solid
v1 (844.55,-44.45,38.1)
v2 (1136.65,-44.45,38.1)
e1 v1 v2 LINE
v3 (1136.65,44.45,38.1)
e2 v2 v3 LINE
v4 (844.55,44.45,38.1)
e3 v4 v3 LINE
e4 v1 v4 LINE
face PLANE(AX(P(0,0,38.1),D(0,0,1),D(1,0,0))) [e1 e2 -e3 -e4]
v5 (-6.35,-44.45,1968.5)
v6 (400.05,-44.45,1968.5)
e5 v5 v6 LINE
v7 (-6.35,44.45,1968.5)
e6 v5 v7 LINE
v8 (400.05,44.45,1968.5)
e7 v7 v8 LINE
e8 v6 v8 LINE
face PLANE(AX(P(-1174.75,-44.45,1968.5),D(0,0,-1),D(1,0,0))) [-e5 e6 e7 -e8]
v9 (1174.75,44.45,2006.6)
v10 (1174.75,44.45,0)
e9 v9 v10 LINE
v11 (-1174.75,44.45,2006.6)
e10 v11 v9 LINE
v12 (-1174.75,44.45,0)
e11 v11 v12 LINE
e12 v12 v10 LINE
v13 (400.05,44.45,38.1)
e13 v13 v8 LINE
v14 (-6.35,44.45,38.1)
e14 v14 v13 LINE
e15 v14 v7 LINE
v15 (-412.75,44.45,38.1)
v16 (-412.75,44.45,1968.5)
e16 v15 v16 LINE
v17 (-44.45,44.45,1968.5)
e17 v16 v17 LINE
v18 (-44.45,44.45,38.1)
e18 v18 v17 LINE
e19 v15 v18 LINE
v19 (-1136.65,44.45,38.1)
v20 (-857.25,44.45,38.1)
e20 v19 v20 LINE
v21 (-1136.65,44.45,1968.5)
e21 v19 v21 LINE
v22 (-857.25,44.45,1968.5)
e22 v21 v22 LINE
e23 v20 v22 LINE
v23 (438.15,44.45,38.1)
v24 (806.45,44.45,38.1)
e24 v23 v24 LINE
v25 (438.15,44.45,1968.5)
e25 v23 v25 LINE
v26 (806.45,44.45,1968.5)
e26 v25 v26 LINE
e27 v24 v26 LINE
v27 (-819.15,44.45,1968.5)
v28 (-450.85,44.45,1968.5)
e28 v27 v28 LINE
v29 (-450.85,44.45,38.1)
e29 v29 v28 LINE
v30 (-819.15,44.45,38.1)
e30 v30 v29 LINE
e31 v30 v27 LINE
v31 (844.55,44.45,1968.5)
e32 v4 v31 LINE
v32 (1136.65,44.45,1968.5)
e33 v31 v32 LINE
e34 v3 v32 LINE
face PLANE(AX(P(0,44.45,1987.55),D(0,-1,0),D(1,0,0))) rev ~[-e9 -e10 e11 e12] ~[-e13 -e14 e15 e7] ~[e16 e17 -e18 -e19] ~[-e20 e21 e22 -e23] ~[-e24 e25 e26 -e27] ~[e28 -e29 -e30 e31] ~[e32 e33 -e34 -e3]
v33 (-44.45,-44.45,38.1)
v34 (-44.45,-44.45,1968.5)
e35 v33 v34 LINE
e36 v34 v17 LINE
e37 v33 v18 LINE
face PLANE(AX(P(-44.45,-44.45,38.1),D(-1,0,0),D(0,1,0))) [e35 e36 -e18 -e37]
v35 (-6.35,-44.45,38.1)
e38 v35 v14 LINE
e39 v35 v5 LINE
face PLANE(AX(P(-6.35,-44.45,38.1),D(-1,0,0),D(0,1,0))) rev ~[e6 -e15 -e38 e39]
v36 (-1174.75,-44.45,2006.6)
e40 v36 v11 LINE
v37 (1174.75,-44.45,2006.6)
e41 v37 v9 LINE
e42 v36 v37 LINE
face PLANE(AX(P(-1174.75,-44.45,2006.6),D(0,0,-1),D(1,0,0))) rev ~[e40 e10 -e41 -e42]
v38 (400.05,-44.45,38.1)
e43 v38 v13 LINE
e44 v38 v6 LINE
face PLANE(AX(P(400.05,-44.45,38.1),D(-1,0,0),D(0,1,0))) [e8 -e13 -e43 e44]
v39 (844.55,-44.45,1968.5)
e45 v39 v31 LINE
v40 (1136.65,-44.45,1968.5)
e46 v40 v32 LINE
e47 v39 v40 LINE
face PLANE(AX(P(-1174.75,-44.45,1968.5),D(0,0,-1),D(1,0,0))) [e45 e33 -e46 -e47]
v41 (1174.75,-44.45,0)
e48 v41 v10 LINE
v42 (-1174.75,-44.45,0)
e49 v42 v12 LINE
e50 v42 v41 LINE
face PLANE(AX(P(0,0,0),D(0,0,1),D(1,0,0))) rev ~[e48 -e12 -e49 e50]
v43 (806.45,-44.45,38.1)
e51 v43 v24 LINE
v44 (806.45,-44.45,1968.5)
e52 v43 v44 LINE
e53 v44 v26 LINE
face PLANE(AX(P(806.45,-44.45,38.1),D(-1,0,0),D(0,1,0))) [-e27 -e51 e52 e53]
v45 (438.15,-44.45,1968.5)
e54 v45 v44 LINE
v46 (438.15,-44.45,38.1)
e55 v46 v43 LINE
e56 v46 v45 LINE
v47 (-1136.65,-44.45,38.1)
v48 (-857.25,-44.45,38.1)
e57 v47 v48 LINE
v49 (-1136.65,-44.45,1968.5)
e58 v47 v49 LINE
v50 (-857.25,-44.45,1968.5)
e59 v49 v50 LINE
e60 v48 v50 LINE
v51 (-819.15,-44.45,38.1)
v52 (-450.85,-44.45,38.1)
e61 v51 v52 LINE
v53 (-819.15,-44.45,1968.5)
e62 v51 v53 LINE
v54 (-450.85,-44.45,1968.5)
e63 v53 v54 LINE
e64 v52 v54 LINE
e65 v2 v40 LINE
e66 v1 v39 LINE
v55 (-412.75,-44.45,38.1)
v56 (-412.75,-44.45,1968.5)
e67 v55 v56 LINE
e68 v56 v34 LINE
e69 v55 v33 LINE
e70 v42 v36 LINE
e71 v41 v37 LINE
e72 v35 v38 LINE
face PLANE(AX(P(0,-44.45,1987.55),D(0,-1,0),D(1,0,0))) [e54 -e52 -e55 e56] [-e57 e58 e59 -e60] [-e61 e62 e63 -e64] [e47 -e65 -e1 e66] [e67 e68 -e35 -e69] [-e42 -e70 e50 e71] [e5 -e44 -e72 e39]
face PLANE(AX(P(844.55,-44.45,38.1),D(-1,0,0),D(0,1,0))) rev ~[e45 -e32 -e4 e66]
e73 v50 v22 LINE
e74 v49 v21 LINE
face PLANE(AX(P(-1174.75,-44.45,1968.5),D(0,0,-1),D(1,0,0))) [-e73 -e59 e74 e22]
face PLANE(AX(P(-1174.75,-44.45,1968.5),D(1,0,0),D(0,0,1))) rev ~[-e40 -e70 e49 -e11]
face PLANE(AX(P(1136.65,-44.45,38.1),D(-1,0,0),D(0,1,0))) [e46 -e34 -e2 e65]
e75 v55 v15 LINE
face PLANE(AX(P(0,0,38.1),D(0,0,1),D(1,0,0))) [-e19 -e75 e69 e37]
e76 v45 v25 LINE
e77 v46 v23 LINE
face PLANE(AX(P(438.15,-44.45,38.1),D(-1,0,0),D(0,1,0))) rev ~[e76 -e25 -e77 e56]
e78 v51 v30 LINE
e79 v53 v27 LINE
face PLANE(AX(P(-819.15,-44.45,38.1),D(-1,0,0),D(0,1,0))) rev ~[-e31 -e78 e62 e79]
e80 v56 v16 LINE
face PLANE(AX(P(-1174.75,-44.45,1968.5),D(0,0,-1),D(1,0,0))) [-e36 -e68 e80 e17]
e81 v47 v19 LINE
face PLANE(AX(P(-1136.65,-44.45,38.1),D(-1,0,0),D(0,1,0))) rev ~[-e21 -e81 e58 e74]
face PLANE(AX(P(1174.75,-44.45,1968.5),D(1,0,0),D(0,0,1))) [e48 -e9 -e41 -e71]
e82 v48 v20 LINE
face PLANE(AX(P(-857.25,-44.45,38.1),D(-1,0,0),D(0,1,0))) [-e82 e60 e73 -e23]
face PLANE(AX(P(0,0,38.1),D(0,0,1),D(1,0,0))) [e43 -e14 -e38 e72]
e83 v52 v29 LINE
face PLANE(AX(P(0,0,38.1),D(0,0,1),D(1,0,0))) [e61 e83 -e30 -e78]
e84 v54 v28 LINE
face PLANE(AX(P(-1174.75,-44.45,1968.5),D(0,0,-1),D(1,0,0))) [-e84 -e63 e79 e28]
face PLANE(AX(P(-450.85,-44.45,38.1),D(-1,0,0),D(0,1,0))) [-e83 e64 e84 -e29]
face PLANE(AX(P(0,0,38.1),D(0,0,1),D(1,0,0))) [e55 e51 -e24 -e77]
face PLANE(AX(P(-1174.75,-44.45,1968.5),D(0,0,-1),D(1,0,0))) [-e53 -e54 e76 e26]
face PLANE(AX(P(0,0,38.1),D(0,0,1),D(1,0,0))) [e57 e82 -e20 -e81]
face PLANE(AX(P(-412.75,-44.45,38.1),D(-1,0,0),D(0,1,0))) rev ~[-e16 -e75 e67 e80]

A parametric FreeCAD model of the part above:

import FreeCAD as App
import Part
import Sketcher
from FreeCAD import Vector
Q = App.Units.Quantity


def add_polygon(sketch, points):
    """Adds a closed chain of lines whose ends are joined by coincident constraints."""
    first, n = sketch.GeometryCount, len(points)
    for a, b in zip(points, points[1:] + points[:1]):
        sketch.addGeometry(Part.LineSegment(App.Vector(*a, 0), App.Vector(*b, 0)), False)
    for i in range(n):
        sketch.addConstraint(Sketcher.Constraint("Coincident", first + i, 2, first + (i + 1) % n, 1))

doc = App.newDocument("Part")
body = doc.addObject("PartDesign::Body", "Body")

sketch1 = body.newObject("Sketcher::SketchObject", "Sketch")
sketch1.AttachmentSupport = (doc.getObject("XY_Plane"), [""])
sketch1.MapMode = "FlatFace"
add_polygon(sketch1, [(-1175, 44), (-1175, -44), (1175, -44), (1175, 44)])
sketch1.addConstraint([
    Sketcher.Constraint("Vertical", 0),
    Sketcher.Constraint("Horizontal", 1),
    Sketcher.Constraint("Vertical", 2),
    Sketcher.Constraint("Horizontal", 3),
    Sketcher.Constraint("Symmetric", 0, 2, 2, 2, -1, 1),
    Sketcher.Constraint("DistanceX", 1, 1, 1, 2, Q("92.5 in")),
    Sketcher.Constraint("DistanceY", 0, 2, 0, 1, Q("3.5 in")),
])
pad1 = body.newObject("PartDesign::Pad", "Pad")
pad1.Profile = sketch1
pad1.Length = Q("1.5 in")

sketch2 = body.newObject("Sketcher::SketchObject", "Sketch001")
sketch2.AttachmentSupport = (doc.getObject("XY_Plane"), [""])
sketch2.MapMode = "FlatFace"
sketch2.AttachmentOffset = App.Placement(Vector(0, 0, 1.5 * 25.4), App.Rotation())
add_polygon(sketch2, [(-1175, 44), (-1175, -44), (-1137, -44), (-1137, 44)])
add_polygon(sketch2, [(-857, 44), (-857, -44), (-819, -44), (-819, 44)])
add_polygon(sketch2, [(-451, 44), (-451, -44), (-413, -44), (-413, 44)])
add_polygon(sketch2, [(-44, 44), (-44, -44), (-6, -44), (-6, 44)])
add_polygon(sketch2, [(400, 44), (400, -44), (438, -44), (438, 44)])
add_polygon(sketch2, [(806, 44), (806, -44), (845, -44), (845, 44)])
add_polygon(sketch2, [(1137, 44), (1137, -44), (1175, -44), (1175, 44)])
sketch2.addConstraint([
    Sketcher.Constraint("Vertical", 0),
    Sketcher.Constraint("Horizontal", 1),
    Sketcher.Constraint("Vertical", 2),
    Sketcher.Constraint("Horizontal", 3),
    Sketcher.Constraint("Vertical", 4),
    Sketcher.Constraint("Horizontal", 5),
    Sketcher.Constraint("Vertical", 6),
    Sketcher.Constraint("Horizontal", 7),
    Sketcher.Constraint("Vertical", 8),
    Sketcher.Constraint("Horizontal", 9),
    Sketcher.Constraint("Vertical", 10),
    Sketcher.Constraint("Horizontal", 11),
    Sketcher.Constraint("Vertical", 12),
    Sketcher.Constraint("Horizontal", 13),
    Sketcher.Constraint("Vertical", 14),
    Sketcher.Constraint("Horizontal", 15),
    Sketcher.Constraint("Vertical", 16),
    Sketcher.Constraint("Horizontal", 17),
    Sketcher.Constraint("Vertical", 18),
    Sketcher.Constraint("Horizontal", 19),
    Sketcher.Constraint("Vertical", 20),
    Sketcher.Constraint("Horizontal", 21),
    Sketcher.Constraint("Vertical", 22),
    Sketcher.Constraint("Horizontal", 23),
    Sketcher.Constraint("Vertical", 24),
    Sketcher.Constraint("Horizontal", 25),
    Sketcher.Constraint("Vertical", 26),
    Sketcher.Constraint("Horizontal", 27),
    Sketcher.Constraint("Symmetric", 2, 2, 24, 2, -1, 1),
    Sketcher.Constraint("Symmetric", 0, 2, 26, 2, -1, 1),
    Sketcher.Constraint("Horizontal", 1, 2, 4, 2),
    Sketcher.Constraint("Horizontal", 3, 2, 6, 2),
    Sketcher.Constraint("Horizontal", 5, 2, 8, 2),
    Sketcher.Constraint("Horizontal", 7, 2, 10, 2),
    Sketcher.Constraint("Horizontal", 9, 2, 12, 2),
    Sketcher.Constraint("Horizontal", 11, 2, 14, 2),
    Sketcher.Constraint("Horizontal", 13, 2, 16, 2),
    Sketcher.Constraint("Horizontal", 15, 2, 18, 2),
    Sketcher.Constraint("Horizontal", 17, 2, 20, 2),
    Sketcher.Constraint("Horizontal", 19, 2, 22, 2),
    Sketcher.Constraint("Horizontal", 21, 2, 24, 2),
    Sketcher.Constraint("Equal", 3, 5),
    Sketcher.Constraint("Equal", 7, 9),
    Sketcher.Constraint("Equal", 11, 13),
    Sketcher.Constraint("Equal", 15, 17),
    Sketcher.Constraint("Equal", 19, 21),
    Sketcher.Constraint("DistanceX", 1, 1, 1, 2, Q("1.5 in")),
    Sketcher.Constraint("DistanceY", 0, 2, 0, 1, Q("3.5 in")),
    Sketcher.Constraint("DistanceX", 1, 2, 4, 2, Q("11 in")),
    Sketcher.Constraint("DistanceX", 4, 2, 8, 2, Q("16 in")),
    Sketcher.Constraint("DistanceX", 8, 2, 12, 2, Q("16 in")),
    Sketcher.Constraint("DistanceX", 13, 2, 16, 2, Q("16 in")),
    Sketcher.Constraint("DistanceX", 16, 2, 20, 2, Q("16 in")),
    Sketcher.Constraint("DistanceX", 20, 2, 24, 2, Q("13 in")),
])
pad2 = body.newObject("PartDesign::Pad", "Pad001")
pad2.Profile = sketch2
pad2.Length = Q("76 in")

sketch3 = body.newObject("Sketcher::SketchObject", "Sketch002")
sketch3.AttachmentSupport = (doc.getObject("XZ_Plane"), [""])
sketch3.MapMode = "FlatFace"
sketch3.AttachmentOffset = App.Placement(Vector(0, 0, 1.75 * 25.4), App.Rotation())
add_polygon(sketch3, [(-1175, 2007), (-1175, 1968), (1175, 1968), (1175, 2007)])
sketch3.addConstraint([
    Sketcher.Constraint("Vertical", 0),
    Sketcher.Constraint("Horizontal", 1),
    Sketcher.Constraint("Vertical", 2),
    Sketcher.Constraint("Horizontal", 3),
    Sketcher.Constraint("DistanceX", 1, 1, 1, 2, Q("92.5 in")),
    Sketcher.Constraint("DistanceY", 0, 2, 0, 1, Q("1.5 in")),
    Sketcher.Constraint("DistanceY", -1, 1, 2, 2, Q("79 in")),
    Sketcher.Constraint("DistanceX", 0, 2, -1, 1, Q("46.25 in")),
])
pad3 = body.newObject("PartDesign::Pad", "Pad002")
pad3.Profile = sketch3
pad3.Length = Q("3.5 in")
pad3.Reversed = True

doc.recompute()
